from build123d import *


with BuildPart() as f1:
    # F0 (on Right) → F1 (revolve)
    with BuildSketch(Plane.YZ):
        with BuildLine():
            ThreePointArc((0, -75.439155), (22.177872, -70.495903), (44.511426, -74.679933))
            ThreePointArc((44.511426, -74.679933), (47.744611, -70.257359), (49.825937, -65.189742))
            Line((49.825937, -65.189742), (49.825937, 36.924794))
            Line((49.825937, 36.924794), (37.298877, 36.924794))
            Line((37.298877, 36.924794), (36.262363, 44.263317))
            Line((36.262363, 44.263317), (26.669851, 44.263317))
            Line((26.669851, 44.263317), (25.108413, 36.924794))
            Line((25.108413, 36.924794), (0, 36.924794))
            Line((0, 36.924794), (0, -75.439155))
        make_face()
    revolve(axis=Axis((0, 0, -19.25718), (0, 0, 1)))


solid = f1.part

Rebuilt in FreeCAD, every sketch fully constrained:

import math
import FreeCAD as App
import Part
import Sketcher

V = App.Vector

doc = App.newDocument("Part")
body = doc.addObject("PartDesign::Body", "Body")

# Sketch on YZ plane
sketch1 = doc.addObject("Sketcher::SketchObject", "Sketch")
body.addObject(sketch1)
sketch1.AttachmentSupport = (doc.YZ_Plane, [""])
sketch1.MapMode = "FlatFace"
sketch1.addGeometry([
    Part.ArcOfCircle(Part.Circle(V(23.142425, -127.045441, 0), V(0, 0, 1), 56.557764), math.radians(67.800907), math.radians(114.153467)),  # 0
    Part.ArcOfCircle(Part.Circle(V(27.909185, -59.149511, 0), V(0, 0, 1), 22.73386), math.radians(-43.089547), math.radians(-15.408143)),  # 1
    Part.LineSegment(V(49.825937, -65.189742, 0), V(49.825937, 36.924794, 0)),  # 2
    Part.LineSegment(V(49.825937, 36.924794, 0), V(37.298877, 36.924794, 0)),  # 3
    Part.LineSegment(V(37.298877, 36.924794, 0), V(36.262363, 44.263317, 0)),  # 4
    Part.LineSegment(V(36.262363, 44.263317, 0), V(26.669851, 44.263317, 0)),  # 5
    Part.LineSegment(V(26.669851, 44.263317, 0), V(25.108413, 36.924794, 0)),  # 6
    Part.LineSegment(V(25.108413, 36.924794, 0), V(0, 36.924794, 0)),  # 7
    Part.LineSegment(V(0, 36.924794, 0), V(0, -75.439155, 0)),  # 8
], False)
sketch1.addConstraint([
    Sketcher.Constraint("Coincident", 0, 1, 1, 1),
    Sketcher.Constraint("Coincident", 1, 2, 2, 1),
    Sketcher.Constraint("Coincident", 2, 2, 3, 1),
    Sketcher.Constraint("Coincident", 3, 2, 4, 1),
    Sketcher.Constraint("Coincident", 4, 2, 5, 1),
    Sketcher.Constraint("Coincident", 5, 2, 6, 1),
    Sketcher.Constraint("Coincident", 6, 2, 7, 1),
    Sketcher.Constraint("Coincident", 7, 2, 8, 1),
    Sketcher.Constraint("Coincident", 8, 2, 0, 2),
    Sketcher.Constraint("Vertical", 2),
    Sketcher.Constraint("Horizontal", 3),
    Sketcher.Constraint("Horizontal", 5),
    Sketcher.Constraint("Horizontal", 7),
    Sketcher.Constraint("Vertical", 8),
    Sketcher.Constraint("PointOnObject", 7, 2, -2),
    Sketcher.Constraint("Horizontal", 3, 2, 6, 2),
    Sketcher.Constraint("Radius", 1, 22.73386),
    Sketcher.Constraint("Radius", 0, 56.557764),
    Sketcher.Constraint("DistanceX", 0, 3, 0, 1, 21.369001),
    Sketcher.Constraint("Distance", 6, 7.5028),
    Sketcher.Constraint("DistanceX", 3, 2, 3, 1, 12.52706),
    Sketcher.Constraint("DistanceX", 5, 2, 5, 1, 9.592512),
    Sketcher.Constraint("DistanceY", 8, 2, 8, 1, 112.363949),
    Sketcher.Constraint("DistanceY", 0, 3, 1, 2, 61.855699),
    Sketcher.Constraint("Distance", 4, 7.411362),
    Sketcher.Constraint("DistanceX", 7, 2, 7, 1, 25.108413),
    Sketcher.Constraint("DistanceY", 2, 1, 2, 2, 102.114536),
    Sketcher.Constraint("DistanceY", 0, 3, -1, 1, 127.045441),
    Sketcher.Constraint("DistanceY", 1, 3, -1, 1, 59.149511),
])
revolution = doc.addObject("PartDesign::Revolution", "Revolution")
body.addObject(revolution)
revolution.Profile = sketch1
revolution.ReferenceAxis = (sketch1, ["V_Axis"])
revolution.Angle = 360

doc.recompute()
